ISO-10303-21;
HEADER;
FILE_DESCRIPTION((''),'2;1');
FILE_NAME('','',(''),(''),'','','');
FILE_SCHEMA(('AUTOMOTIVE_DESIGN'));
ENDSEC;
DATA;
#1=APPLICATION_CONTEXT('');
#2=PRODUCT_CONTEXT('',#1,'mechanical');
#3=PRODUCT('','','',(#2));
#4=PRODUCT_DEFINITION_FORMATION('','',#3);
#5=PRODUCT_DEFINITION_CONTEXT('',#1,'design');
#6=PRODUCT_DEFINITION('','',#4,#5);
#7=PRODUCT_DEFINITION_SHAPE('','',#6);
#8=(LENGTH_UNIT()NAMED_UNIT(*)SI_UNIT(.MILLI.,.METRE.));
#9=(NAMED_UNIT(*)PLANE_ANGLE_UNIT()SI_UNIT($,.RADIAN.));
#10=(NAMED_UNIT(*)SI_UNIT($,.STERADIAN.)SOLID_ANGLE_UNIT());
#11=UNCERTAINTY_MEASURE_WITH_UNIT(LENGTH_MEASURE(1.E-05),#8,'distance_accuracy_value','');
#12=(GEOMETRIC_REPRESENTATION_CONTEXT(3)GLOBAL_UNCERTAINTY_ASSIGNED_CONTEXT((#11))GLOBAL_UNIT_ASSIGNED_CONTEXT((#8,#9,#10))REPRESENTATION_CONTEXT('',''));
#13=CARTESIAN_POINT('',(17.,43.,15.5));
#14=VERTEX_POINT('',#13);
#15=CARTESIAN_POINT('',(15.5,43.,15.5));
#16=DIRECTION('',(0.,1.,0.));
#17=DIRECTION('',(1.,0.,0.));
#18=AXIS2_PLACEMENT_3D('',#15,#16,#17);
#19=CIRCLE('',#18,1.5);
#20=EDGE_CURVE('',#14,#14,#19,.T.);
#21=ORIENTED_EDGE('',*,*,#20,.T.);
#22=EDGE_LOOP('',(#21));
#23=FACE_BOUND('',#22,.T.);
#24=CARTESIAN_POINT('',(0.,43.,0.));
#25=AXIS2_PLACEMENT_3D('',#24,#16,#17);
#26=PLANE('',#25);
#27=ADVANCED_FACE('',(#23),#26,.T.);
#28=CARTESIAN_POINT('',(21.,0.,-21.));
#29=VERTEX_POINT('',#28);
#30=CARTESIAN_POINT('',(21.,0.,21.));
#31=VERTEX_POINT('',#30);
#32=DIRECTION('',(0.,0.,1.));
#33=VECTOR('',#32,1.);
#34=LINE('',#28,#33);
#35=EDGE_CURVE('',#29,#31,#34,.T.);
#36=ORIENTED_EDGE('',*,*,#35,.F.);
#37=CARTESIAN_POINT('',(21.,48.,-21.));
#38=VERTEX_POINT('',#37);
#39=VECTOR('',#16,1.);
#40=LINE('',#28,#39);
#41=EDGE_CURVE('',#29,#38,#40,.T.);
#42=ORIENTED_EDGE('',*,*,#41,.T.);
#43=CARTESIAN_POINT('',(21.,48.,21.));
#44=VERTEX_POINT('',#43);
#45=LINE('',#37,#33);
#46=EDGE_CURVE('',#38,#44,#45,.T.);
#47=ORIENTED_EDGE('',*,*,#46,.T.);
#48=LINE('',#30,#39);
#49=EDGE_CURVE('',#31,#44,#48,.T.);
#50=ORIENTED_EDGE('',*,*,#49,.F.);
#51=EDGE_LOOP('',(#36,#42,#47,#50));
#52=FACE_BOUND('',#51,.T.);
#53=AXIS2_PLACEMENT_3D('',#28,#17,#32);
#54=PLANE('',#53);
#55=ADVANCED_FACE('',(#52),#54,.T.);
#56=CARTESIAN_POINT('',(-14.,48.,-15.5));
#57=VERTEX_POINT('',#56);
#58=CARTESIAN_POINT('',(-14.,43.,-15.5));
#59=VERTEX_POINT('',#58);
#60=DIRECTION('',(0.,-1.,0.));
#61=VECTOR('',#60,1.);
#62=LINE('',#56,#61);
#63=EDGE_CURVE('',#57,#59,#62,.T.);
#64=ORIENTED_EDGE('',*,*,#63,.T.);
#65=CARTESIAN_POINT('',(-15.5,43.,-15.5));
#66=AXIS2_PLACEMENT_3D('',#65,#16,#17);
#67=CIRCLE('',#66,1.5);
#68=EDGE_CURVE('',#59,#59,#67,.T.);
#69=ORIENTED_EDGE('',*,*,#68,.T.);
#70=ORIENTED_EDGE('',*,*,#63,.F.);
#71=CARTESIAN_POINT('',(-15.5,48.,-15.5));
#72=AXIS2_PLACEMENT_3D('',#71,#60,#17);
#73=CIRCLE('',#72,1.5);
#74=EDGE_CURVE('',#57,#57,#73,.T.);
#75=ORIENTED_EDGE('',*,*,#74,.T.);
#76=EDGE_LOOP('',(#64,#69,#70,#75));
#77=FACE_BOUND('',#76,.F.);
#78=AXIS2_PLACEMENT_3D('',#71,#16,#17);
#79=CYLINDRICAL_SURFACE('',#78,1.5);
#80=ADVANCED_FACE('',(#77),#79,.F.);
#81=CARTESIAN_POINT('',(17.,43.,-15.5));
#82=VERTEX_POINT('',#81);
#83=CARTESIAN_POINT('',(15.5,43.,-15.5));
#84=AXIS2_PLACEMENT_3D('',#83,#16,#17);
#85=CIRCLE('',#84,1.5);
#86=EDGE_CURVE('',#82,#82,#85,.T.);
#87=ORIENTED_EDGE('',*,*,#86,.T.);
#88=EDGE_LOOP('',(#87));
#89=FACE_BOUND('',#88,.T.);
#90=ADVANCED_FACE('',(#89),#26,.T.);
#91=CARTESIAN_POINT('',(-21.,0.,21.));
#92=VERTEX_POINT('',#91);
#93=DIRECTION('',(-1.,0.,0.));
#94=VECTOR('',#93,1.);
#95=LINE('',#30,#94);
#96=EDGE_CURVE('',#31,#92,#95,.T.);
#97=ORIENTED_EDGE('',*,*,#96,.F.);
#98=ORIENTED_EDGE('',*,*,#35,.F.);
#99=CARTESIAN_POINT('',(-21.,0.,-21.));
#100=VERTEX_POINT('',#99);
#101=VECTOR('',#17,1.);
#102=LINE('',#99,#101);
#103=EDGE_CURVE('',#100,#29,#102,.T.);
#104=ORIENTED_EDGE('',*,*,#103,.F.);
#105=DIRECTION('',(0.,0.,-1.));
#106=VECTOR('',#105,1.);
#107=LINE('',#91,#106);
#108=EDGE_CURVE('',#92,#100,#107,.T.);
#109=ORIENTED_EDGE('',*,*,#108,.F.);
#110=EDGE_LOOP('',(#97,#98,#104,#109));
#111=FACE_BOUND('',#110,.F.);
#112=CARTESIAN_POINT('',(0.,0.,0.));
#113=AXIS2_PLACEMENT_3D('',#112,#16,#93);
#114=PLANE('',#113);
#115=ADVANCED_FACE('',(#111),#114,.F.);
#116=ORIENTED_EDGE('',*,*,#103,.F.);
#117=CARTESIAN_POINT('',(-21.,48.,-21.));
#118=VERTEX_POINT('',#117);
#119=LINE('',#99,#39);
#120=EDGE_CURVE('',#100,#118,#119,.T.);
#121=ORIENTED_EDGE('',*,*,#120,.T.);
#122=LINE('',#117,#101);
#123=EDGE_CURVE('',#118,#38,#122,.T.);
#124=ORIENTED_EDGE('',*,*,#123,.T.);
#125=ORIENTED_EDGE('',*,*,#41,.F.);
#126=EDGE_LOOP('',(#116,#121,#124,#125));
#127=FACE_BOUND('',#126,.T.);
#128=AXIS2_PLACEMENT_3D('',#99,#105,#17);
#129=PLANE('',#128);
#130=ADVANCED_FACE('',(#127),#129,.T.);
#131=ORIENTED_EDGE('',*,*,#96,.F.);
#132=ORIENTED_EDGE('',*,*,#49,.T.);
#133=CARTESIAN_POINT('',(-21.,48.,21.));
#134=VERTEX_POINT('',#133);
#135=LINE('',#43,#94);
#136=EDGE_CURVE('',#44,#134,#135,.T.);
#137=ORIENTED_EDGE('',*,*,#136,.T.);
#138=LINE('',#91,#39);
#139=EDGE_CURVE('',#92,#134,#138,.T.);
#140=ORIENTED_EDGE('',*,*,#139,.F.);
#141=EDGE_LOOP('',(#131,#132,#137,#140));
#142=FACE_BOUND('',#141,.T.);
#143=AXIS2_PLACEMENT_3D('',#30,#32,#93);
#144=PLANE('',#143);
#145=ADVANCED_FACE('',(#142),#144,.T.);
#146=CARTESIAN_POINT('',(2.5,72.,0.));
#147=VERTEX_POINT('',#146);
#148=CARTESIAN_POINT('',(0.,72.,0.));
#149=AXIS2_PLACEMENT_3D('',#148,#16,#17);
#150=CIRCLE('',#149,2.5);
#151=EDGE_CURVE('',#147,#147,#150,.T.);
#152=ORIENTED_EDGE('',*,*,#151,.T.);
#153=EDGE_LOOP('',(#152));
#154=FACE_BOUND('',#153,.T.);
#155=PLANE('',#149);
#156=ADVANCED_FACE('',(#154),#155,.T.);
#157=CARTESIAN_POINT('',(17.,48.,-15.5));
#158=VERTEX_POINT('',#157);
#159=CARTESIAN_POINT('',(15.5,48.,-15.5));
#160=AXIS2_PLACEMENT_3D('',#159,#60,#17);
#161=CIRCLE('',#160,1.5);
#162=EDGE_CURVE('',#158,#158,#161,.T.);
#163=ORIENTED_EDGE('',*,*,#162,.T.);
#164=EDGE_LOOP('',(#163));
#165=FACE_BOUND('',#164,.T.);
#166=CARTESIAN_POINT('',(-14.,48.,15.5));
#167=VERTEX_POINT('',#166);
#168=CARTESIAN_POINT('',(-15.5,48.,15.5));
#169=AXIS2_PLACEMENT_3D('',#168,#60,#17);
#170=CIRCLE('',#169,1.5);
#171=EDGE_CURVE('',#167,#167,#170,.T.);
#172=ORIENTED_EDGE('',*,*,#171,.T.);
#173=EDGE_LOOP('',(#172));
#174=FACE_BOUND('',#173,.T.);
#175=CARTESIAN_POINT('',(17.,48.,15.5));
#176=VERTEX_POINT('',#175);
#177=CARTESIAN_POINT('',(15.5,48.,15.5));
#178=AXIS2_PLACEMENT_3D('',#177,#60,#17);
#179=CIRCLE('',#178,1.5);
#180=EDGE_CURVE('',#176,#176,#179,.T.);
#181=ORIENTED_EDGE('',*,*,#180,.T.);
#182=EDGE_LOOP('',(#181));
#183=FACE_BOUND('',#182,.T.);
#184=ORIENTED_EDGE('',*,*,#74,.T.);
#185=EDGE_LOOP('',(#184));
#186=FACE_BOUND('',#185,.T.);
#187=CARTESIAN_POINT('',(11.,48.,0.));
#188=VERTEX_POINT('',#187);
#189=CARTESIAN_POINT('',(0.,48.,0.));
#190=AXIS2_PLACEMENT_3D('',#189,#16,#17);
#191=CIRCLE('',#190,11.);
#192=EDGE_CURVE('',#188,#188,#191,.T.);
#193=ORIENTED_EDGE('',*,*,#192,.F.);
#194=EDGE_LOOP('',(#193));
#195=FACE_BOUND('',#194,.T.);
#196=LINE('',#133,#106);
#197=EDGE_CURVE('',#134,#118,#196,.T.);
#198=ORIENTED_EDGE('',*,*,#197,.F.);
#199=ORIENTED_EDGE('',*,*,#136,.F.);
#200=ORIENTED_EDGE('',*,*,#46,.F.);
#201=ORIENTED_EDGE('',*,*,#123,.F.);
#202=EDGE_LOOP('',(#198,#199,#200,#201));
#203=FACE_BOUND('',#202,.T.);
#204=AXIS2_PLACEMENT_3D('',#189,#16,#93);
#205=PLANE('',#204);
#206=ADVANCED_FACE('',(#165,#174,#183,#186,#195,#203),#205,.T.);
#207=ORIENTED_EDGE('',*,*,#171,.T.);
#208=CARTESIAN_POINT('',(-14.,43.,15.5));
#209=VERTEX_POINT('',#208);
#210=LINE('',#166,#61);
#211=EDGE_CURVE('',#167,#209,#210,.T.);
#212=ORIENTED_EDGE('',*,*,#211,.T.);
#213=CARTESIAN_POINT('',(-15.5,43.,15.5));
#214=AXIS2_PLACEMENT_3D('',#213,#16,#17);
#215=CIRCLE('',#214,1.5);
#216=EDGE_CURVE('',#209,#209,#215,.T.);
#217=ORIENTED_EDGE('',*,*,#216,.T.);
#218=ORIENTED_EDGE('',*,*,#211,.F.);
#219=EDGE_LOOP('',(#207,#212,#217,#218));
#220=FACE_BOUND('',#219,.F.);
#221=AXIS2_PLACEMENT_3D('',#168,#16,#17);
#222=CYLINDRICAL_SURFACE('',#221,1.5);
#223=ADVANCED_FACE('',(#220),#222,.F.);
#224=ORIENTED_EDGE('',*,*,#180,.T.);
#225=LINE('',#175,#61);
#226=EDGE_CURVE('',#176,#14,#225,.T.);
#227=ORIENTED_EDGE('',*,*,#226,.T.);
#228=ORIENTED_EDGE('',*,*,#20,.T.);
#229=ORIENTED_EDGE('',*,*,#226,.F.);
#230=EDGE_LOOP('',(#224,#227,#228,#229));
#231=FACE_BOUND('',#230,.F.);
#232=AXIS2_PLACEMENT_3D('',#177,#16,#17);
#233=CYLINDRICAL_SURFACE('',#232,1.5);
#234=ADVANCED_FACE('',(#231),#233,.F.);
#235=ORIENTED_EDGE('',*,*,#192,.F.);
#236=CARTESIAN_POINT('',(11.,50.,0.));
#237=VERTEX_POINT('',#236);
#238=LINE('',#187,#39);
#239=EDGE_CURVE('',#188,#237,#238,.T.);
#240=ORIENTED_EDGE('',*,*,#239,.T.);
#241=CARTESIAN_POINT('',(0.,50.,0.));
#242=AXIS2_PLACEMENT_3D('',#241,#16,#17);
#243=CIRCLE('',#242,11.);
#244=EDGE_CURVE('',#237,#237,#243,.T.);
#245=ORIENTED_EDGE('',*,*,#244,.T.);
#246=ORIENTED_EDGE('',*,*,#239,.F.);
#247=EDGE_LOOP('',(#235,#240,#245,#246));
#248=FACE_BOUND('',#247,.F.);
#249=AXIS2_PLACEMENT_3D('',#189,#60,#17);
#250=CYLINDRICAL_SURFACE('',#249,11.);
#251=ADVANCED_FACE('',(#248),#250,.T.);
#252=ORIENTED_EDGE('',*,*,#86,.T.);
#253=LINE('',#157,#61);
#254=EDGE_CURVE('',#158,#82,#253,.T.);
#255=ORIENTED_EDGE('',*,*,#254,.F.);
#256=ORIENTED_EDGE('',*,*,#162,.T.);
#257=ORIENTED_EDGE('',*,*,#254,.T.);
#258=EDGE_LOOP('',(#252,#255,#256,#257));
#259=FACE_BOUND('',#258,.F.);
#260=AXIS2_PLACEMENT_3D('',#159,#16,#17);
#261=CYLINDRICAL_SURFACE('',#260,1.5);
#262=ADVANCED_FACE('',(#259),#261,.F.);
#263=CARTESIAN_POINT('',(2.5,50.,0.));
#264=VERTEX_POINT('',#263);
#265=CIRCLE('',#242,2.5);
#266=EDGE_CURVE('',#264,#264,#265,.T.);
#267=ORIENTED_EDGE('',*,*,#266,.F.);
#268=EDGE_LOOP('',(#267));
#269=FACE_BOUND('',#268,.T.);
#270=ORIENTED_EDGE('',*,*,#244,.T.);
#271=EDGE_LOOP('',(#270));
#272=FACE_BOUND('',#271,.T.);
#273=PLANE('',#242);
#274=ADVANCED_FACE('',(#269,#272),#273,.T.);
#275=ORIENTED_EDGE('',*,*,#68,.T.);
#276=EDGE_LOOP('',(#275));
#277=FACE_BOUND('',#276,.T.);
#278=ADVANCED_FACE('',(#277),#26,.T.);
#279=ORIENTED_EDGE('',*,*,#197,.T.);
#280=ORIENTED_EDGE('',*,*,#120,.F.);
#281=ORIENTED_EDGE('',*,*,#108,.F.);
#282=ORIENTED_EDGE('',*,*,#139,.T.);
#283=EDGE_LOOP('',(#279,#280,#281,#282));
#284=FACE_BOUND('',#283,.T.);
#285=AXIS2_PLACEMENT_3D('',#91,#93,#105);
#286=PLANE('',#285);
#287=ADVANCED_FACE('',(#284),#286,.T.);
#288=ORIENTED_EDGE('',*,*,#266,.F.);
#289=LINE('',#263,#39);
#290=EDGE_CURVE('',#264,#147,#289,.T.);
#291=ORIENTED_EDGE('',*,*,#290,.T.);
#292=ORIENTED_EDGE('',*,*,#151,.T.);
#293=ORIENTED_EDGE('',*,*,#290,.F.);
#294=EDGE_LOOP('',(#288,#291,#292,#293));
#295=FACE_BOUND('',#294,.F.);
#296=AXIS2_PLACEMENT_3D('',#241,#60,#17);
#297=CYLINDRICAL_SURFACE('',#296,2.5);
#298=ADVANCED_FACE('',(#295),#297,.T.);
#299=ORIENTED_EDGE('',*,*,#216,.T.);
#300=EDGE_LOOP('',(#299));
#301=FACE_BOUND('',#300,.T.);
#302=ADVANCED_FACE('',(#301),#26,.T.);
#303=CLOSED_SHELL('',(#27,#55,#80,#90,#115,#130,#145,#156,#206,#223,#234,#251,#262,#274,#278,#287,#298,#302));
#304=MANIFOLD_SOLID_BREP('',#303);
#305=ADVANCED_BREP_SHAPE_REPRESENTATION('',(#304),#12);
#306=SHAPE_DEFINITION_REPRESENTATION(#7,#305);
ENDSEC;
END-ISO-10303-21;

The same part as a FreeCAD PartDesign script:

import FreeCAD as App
import Part
import Sketcher


def add_polygon(sketch, points):
    """Adds a closed chain of lines whose ends are joined by coincident constraints."""
    first, n = sketch.GeometryCount, len(points)
    for a, b in zip(points, points[1:] + points[:1]):
        sketch.addGeometry(Part.LineSegment(App.Vector(*a, 0), App.Vector(*b, 0)), False)
    for i in range(n):
        sketch.addConstraint(Sketcher.Constraint("Coincident", first + i, 2, first + (i + 1) % n, 1))

doc = App.newDocument("Part")
body = doc.addObject("PartDesign::Body", "Body")

# Sketch on XZ plane
sketch1 = body.newObject("Sketcher::SketchObject", "Sketch")
sketch1.AttachmentSupport = (doc.getObject("XZ_Plane"), [""])
sketch1.MapMode = "FlatFace"
add_polygon(sketch1, [(-21, 21), (21, 21), (21, -21), (-21, -21)])  # lines 0-3
sketch1.addConstraint([
    Sketcher.Constraint("Horizontal", 0),
    Sketcher.Constraint("Vertical", 1),
    Sketcher.Constraint("Horizontal", 2),
    Sketcher.Constraint("Vertical", 3),
    Sketcher.Constraint("Symmetric", 0, 2, 2, 2, -1, 1),
    Sketcher.Constraint("Equal", 2, 1),
    Sketcher.Constraint("DistanceX", 0, 1, 0, 2, 42.0),
])
pad1 = body.newObject("PartDesign::Pad", "Pad")
pad1.Profile = sketch1
pad1.Length = 48
pad1.Reversed = True

# Sketch on XZ plane
sketch2 = body.newObject("Sketcher::SketchObject", "Sketch001")
sketch2.AttachmentSupport = (doc.getObject("XZ_Plane"), [""])
sketch2.MapMode = "FlatFace"
sketch2.AttachmentOffset = App.Placement(App.Vector(0, 0, -48), App.Rotation())
sketch2.addGeometry(Part.Circle(App.Vector(0, 0, 0), App.Vector(0, 0, 1), 11), False)
sketch2.addConstraint([
    Sketcher.Constraint("Coincident", 0, 3, -1, 1),
    Sketcher.Constraint("Diameter", 0, 22.0),
])
pad2 = body.newObject("PartDesign::Pad", "Pad001")
pad2.Profile = sketch2
pad2.Length = 2
pad2.Reversed = True

# Sketch on XZ plane
sketch3 = body.newObject("Sketcher::SketchObject", "Sketch002")
sketch3.AttachmentSupport = (doc.getObject("XZ_Plane"), [""])
sketch3.MapMode = "FlatFace"
sketch3.AttachmentOffset = App.Placement(App.Vector(0, 0, -50), App.Rotation())
sketch3.addGeometry(Part.Circle(App.Vector(0, 0, 0), App.Vector(0, 0, 1), 2.5), False)
sketch3.addConstraint([
    Sketcher.Constraint("Coincident", 0, 3, -1, 1),
    Sketcher.Constraint("Diameter", 0, 5.0),
])
pad3 = body.newObject("PartDesign::Pad", "Pad002")
pad3.Profile = sketch3
pad3.Length = 22
pad3.Reversed = True

# Sketch on XZ plane
sketch4 = body.newObject("Sketcher::SketchObject", "Sketch003")
sketch4.AttachmentSupport = (doc.getObject("XZ_Plane"), [""])
sketch4.MapMode = "FlatFace"
sketch4.AttachmentOffset = App.Placement(App.Vector(0, 0, -48), App.Rotation())
sketch4.addGeometry([
    Part.Circle(App.Vector(-15.5, 15.5, 0), App.Vector(0, 0, 1), 1.5),
    Part.Circle(App.Vector(15.5, 15.5, 0), App.Vector(0, 0, 1), 1.5),
    Part.Circle(App.Vector(-15.5, -15.5, 0), App.Vector(0, 0, 1), 1.5),
    Part.Circle(App.Vector(15.5, -15.5, 0), App.Vector(0, 0, 1), 1.5),
], False)
sketch4.addConstraint([
    Sketcher.Constraint("Equal", 0, 1),
    Sketcher.Constraint("Equal", 1, 2),
    Sketcher.Constraint("Equal", 2, 3),
    Sketcher.Constraint("Symmetric", 1, 3, 2, 3, -1, 1),
    Sketcher.Constraint("Symmetric", 0, 3, 3, 3, -1, 1),
    Sketcher.Constraint("Symmetric", 0, 3, 1, 3, -2),
    Sketcher.Constraint("Diameter", 0, 3.0),
    Sketcher.Constraint("DistanceX", 0, 3, 1, 3, 31.0),
    Sketcher.Constraint("DistanceY", 2, 3, 0, 3, 31.0),
])
pocket1 = body.newObject("PartDesign::Pocket", "Pocket")
pocket1.Profile = sketch4
pocket1.Length = 5
pocket1.Reversed = True

doc.recompute()
